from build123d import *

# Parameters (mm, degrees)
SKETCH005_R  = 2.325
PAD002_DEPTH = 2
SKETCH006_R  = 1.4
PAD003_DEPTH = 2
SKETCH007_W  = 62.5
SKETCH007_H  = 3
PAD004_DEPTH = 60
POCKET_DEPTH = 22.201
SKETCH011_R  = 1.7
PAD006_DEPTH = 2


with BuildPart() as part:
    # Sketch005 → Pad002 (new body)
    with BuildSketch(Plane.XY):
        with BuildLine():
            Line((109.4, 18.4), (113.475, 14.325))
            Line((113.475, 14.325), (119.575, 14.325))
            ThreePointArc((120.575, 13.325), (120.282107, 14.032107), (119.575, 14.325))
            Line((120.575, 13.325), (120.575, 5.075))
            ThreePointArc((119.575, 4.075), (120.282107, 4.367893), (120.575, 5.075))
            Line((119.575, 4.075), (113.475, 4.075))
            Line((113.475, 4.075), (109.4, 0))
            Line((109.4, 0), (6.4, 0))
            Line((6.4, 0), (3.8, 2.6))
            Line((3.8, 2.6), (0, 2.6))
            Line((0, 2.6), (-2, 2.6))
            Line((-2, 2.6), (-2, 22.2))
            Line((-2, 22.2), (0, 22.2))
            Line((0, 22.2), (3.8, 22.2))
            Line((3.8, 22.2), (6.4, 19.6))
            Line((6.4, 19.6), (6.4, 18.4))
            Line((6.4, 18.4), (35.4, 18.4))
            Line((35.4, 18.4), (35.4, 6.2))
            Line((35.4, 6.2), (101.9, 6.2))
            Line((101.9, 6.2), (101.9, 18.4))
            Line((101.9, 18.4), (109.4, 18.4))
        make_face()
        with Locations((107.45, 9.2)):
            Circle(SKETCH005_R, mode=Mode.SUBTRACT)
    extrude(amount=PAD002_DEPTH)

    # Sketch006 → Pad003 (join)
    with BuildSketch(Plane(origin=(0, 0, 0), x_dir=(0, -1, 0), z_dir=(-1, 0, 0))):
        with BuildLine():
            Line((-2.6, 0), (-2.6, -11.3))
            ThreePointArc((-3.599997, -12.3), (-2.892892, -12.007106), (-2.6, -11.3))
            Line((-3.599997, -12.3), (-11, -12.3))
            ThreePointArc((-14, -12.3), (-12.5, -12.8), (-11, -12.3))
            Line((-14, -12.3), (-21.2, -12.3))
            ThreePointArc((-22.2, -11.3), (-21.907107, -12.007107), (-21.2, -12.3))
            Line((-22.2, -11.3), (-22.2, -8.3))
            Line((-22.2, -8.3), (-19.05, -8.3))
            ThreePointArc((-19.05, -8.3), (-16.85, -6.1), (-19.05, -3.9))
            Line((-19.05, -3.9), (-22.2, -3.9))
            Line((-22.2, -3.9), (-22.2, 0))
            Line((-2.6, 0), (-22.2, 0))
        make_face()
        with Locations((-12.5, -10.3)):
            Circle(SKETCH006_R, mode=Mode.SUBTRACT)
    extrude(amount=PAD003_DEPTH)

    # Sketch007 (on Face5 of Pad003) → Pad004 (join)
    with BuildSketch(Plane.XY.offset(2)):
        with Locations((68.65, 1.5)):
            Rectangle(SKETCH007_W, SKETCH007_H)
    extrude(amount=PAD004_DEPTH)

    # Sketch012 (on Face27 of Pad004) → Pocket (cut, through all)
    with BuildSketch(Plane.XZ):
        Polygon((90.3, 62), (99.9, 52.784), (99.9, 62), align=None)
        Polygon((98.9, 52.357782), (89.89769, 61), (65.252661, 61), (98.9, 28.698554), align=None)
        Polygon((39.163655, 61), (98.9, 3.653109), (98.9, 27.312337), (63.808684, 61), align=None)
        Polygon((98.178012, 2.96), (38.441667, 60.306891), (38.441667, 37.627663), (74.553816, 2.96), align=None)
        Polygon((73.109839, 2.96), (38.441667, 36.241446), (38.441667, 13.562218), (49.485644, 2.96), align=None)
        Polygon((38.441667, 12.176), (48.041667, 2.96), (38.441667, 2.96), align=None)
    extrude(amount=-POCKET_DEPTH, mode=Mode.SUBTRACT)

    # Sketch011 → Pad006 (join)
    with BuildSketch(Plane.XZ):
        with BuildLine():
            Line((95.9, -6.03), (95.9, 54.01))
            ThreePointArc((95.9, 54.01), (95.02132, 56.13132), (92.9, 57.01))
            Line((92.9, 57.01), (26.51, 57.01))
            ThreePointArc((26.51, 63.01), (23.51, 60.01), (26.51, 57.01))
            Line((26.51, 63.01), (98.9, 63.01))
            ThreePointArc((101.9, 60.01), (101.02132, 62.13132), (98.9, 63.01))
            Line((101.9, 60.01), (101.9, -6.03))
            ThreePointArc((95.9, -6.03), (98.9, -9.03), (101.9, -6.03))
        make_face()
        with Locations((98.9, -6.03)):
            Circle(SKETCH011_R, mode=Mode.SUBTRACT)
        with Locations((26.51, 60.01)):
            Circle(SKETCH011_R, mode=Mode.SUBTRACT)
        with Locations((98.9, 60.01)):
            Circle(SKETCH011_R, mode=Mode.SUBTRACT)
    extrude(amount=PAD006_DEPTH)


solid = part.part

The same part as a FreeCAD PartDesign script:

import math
import FreeCAD as App
import Part
import Sketcher

V = App.Vector

doc = App.newDocument("Part")
body = doc.addObject("PartDesign::Body", "Body")

sketch1 = doc.addObject("Sketcher::SketchObject", "Sketch")
body.addObject(sketch1)
sketch1.AttachmentSupport = (doc.XY_Plane, [""])
sketch1.MapMode = "FlatFace"
sketch1.addGeometry([
    Part.LineSegment(V(113.5, 14.3, 0), V(109.4, 18.4, 0)),
    Part.LineSegment(V(109.4, 18.4, 0), V(101.9, 18.4, 0)),
    Part.LineSegment(V(101.9, 18.4, 0), V(101.9, 6.2, 0)),
    Part.LineSegment(V(101.9, 6.2, 0), V(35.4, 6.2, 0)),
    Part.LineSegment(V(35.4, 6.2, 0), V(35.4, 18.4, 0)),
    Part.LineSegment(V(35.4, 18.4, 0), V(6.4, 18.4, 0)),
    Part.LineSegment(V(6.4, 18.4, 0), V(6.4, 19.6, 0)),
    Part.LineSegment(V(6.4, 19.6, 0), V(3.8, 22.2, 0)),
    Part.LineSegment(V(3.8, 22.2, 0), V(-2, 22.2, 0)),
    Part.LineSegment(V(-2, 22.2, 0), V(-2, 2.6, 0)),
    Part.LineSegment(V(-2, 2.6, 0), V(3.8, 2.6, 0)),
    Part.LineSegment(V(3.8, 2.6, 0), V(6.4, 0, 0)),
    Part.LineSegment(V(6.4, 0, 0), V(109.4, 0, 0)),
    Part.LineSegment(V(109.4, 0, 0), V(113.5, 4.1, 0)),
    Part.LineSegment(V(113.5, 4.1, 0), V(119.6, 4.1, 0)),
    Part.ArcOfCircle(Part.Circle(V(119.6, 5.1, 0), V(0, 0, 1), 1), math.radians(-90), math.radians(0)),
    Part.LineSegment(V(120.6, 5.1, 0), V(120.6, 13.3, 0)),
    Part.ArcOfCircle(Part.Circle(V(119.6, 13.3, 0), V(0, 0, 1), 1), math.radians(0), math.radians(90)),
    Part.LineSegment(V(119.6, 14.3, 0), V(113.5, 14.3, 0)),
    Part.Circle(V(107.5, 9.2, 0), V(0, 0, 1), 2.3),
], False)
sketch1.addConstraint([
    Sketcher.Constraint("Coincident", 0, 2, 1, 1),
    Sketcher.Constraint("Coincident", 1, 2, 2, 1),
    Sketcher.Constraint("Coincident", 2, 2, 3, 1),
    Sketcher.Constraint("Coincident", 3, 2, 4, 1),
    Sketcher.Constraint("Coincident", 4, 2, 5, 1),
    Sketcher.Constraint("Coincident", 5, 2, 6, 1),
    Sketcher.Constraint("Coincident", 6, 2, 7, 1),
    Sketcher.Constraint("Coincident", 7, 2, 8, 1),
    Sketcher.Constraint("Coincident", 8, 2, 9, 1),
    Sketcher.Constraint("Coincident", 9, 2, 10, 1),
    Sketcher.Constraint("Coincident", 10, 2, 11, 1),
    Sketcher.Constraint("Coincident", 11, 2, 12, 1),
    Sketcher.Constraint("Coincident", 12, 2, 13, 1),
    Sketcher.Constraint("Coincident", 13, 2, 14, 1),
    Sketcher.Constraint("Tangent", 14, 2, 15, 1),
    Sketcher.Constraint("Tangent", 15, 2, 16, 1),
    Sketcher.Constraint("Tangent", 16, 2, 17, 1),
    Sketcher.Constraint("Tangent", 17, 2, 18, 1),
    Sketcher.Constraint("Coincident", 18, 2, 0, 1),
    Sketcher.Constraint("Horizontal", 1),
    Sketcher.Constraint("Vertical", 2),
    Sketcher.Constraint("Horizontal", 3),
    Sketcher.Constraint("Vertical", 4),
    Sketcher.Constraint("Horizontal", 5),
    Sketcher.Constraint("Vertical", 6),
    Sketcher.Constraint("Horizontal", 8),
    Sketcher.Constraint("Vertical", 9),
    Sketcher.Constraint("Horizontal", 10),
    Sketcher.Constraint("Horizontal", 12),
    Sketcher.Constraint("Horizontal", 14),
    Sketcher.Constraint("Vertical", 16),
    Sketcher.Constraint("Horizontal", 18),
    Sketcher.Constraint("Equal", 15, 17),
    Sketcher.Constraint("PointOnObject", 11, 2, -1),
    Sketcher.Constraint("Parallel", 0, 7),
    Sketcher.Constraint("Parallel", 7, 11),
    Sketcher.Constraint("Perpendicular", 11, 13),
    Sketcher.Constraint("Horizontal", 1, 2, 4, 2),
    Sketcher.Constraint("Vertical", 7, 2, 10, 2),
    Sketcher.Constraint("Vertical", 6, 2, 11, 2),
    Sketcher.Constraint("Vertical", 0, 2, 12, 2),
    Sketcher.Constraint("Vertical", 13, 2, 18, 2),
    Sketcher.Constraint("Equal", 0, 13),
    Sketcher.Constraint("Radius", 15, 0.999999),
    Sketcher.Constraint("Diameter", 19, 4.65),
    Sketcher.Constraint("DistanceX", 5, 2, 5, 1, 29.0),
    Sketcher.Constraint("DistanceX", 12, 1, 12, 2, 103.0),
    Sketcher.Constraint("DistanceX", 1, 2, 1, 1, 7.5),
    Sketcher.Constraint("DistanceX", 8, 2, 8, 1, 5.8),
    Sketcher.Constraint("DistanceX", 14, 1, 14, 2, 6.1),
    Sketcher.Constraint("DistanceY", 2, 2, 2, 1, 12.2),
    Sketcher.Constraint("DistanceY", 6, 1, 6, 2, 1.2),
    Sketcher.Constraint("DistanceY", 9, 2, 9, 1, 19.6),
    Sketcher.Constraint("DistanceX", 8, 2, -1, 1, 2.0),
    Sketcher.Constraint("DistanceY", 2, 2, 19, 3, 3.0),
    Sketcher.Constraint("DistanceY", 3, 2, 7, 2, 16.0),
    Sketcher.Constraint("DistanceY", 16, 1, 16, 2, 8.25),
    Sketcher.Constraint("DistanceX", -1, 1, 19, 3, 107.45),
])
pad1 = doc.addObject("PartDesign::Pad", "Pad")
body.addObject(pad1)
pad1.Profile = sketch1
pad1.Length = 2

sketch2 = doc.addObject("Sketcher::SketchObject", "Sketch001")
body.addObject(sketch2)
sketch2.AttachmentSupport = (doc.YZ_Plane, [""])
sketch2.MapMode = "FlatFace"
sketch2.addGeometry([
    Part.LineSegment(V(2.6, -11.3, 0), V(2.6, 0, 0)),
    Part.LineSegment(V(2.6, 0, 0), V(22.2, 0, 0)),
    Part.LineSegment(V(22.2, 0, 0), V(22.2, -3.9, 0)),
    Part.LineSegment(V(22.2, -3.9, 0), V(19.1, -3.9, 0)),
    Part.ArcOfCircle(Part.Circle(V(19.1, -6.1, 0), V(0, 0, 1), 2.2), math.radians(90), math.radians(270)),
    Part.LineSegment(V(19.1, -8.3, 0), V(22.2, -8.3, 0)),
    Part.LineSegment(V(22.2, -8.3, 0), V(22.2, -11.3, 0)),
    Part.ArcOfCircle(Part.Circle(V(21.2, -11.3, 0), V(0, 0, 1), 1), math.radians(-90), math.radians(0)),
    Part.LineSegment(V(21.2, -12.3, 0), V(14, -12.3, 0)),
    Part.ArcOfCircle(Part.Circle(V(12.5, -10.3, 0), V(0, 0, 1), 2.5), math.radians(-127), math.radians(-53)),
    Part.LineSegment(V(11, -12.3, 0), V(3.6, -12.3, 0)),
    Part.ArcOfCircle(Part.Circle(V(3.6, -11.3, 0), V(0, 0, 1), 1), math.radians(180), math.radians(270)),
    Part.Circle(V(12.5, -10.3, 0), V(0, 0, 1), 1.4),
], False)
sketch2.addConstraint([
    Sketcher.Constraint("Coincident", 0, 2, 1, 1),
    Sketcher.Constraint("Coincident", 1, 2, 2, 1),
    Sketcher.Constraint("Coincident", 2, 2, 3, 1),
    Sketcher.Constraint("Tangent", 3, 2, 4, 1),
    Sketcher.Constraint("Tangent", 4, 2, 5, 1),
    Sketcher.Constraint("Coincident", 5, 2, 6, 1),
    Sketcher.Constraint("Tangent", 6, 2, 7, 2),
    Sketcher.Constraint("Tangent", 7, 1, 8, 1),
    Sketcher.Constraint("Coincident", 8, 2, 9, 2),
    Sketcher.Constraint("Coincident", 9, 1, 10, 1),
    Sketcher.Constraint("Coincident", 10, 2, 11, 2),
    Sketcher.Constraint("Tangent", 11, 1, 0, 1),
    Sketcher.Constraint("Vertical", 0),
    Sketcher.Constraint("Horizontal", 1),
    Sketcher.Constraint("Vertical", 2),
    Sketcher.Constraint("Horizontal", 3),
    Sketcher.Constraint("Horizontal", 5),
    Sketcher.Constraint("Vertical", 6),
    Sketcher.Constraint("Horizontal", 8),
    Sketcher.Constraint("Horizontal", 10),
    Sketcher.Constraint("Coincident", 12, 3, 9, 3),
    Sketcher.Constraint("Equal", 7, 11),
    Sketcher.Constraint("PointOnObject", 0, 2, -1),
    Sketcher.Constraint("Horizontal", 7, 3, 11, 3),
    Sketcher.Constraint("Vertical", 2, 2, 5, 2),
    Sketcher.Constraint("Radius", 7, 0.999999),
    Sketcher.Constraint("Diameter", 12, 2.8),
    Sketcher.Constraint("Radius", 4, 2.2),
    Sketcher.Constraint("Radius", 9, 2.5),
    Sketcher.Constraint("DistanceY", 6, 2, 6, 1, 3.0),
    Sketcher.Constraint("DistanceX", 1, 1, 1, 2, 19.6),
    Sketcher.Constraint("DistanceX", 8, 2, 8, 1, 7.2),
    Sketcher.Constraint("DistanceY", 0, 1, 0, 2, 11.3),
    Sketcher.Constraint("DistanceX", -1, 1, 8, 2, 14.0),
    Sketcher.Constraint("DistanceX", -1, 1, 9, 1, 11.0),
    Sketcher.Constraint("DistanceX", 3, 2, 3, 1, 3.15),
    Sketcher.Constraint("DistanceX", 10, 2, 10, 1, 7.400003),
])
pad2 = doc.addObject("PartDesign::Pad", "Pad001")
body.addObject(pad2)
pad2.Profile = sketch2
pad2.Length = 2
pad2.Reversed = True

sketch3 = doc.addObject("Sketcher::SketchObject", "Sketch002")
body.addObject(sketch3)
sketch3.AttachmentSupport = (doc.XY_Plane, [""])
sketch3.MapMode = "FlatFace"
sketch3.AttachmentOffset = App.Placement(V(0, 0, 2), App.Rotation())
sketch3.addGeometry([
    Part.LineSegment(V(37.4, 3, 0), V(37.4, 0, 0)),
    Part.LineSegment(V(37.4, 0, 0), V(99.9, 0, 0)),
    Part.LineSegment(V(99.9, 0, 0), V(99.9, 3, 0)),
    Part.LineSegment(V(99.9, 3, 0), V(37.4, 3, 0)),
], False)
sketch3.addConstraint([
    Sketcher.Constraint("Coincident", 0, 2, 1, 1),
    Sketcher.Constraint("Coincident", 1, 2, 2, 1),
    Sketcher.Constraint("Coincident", 2, 2, 3, 1),
    Sketcher.Constraint("Coincident", 3, 2, 0, 1),
    Sketcher.Constraint("Vertical", 0),
    Sketcher.Constraint("Horizontal", 1),
    Sketcher.Constraint("Vertical", 2),
    Sketcher.Constraint("Horizontal", 3),
    Sketcher.Constraint("PointOnObject", 0, 2, -1),
    Sketcher.Constraint("DistanceY", 0, 2, 0, 1, 3.0),
    Sketcher.Constraint("DistanceX", 1, 1, 1, 2, 62.5),
    Sketcher.Constraint("DistanceX", -1, 1, 0, 2, 37.4),
])
pad3 = doc.addObject("PartDesign::Pad", "Pad002")
body.addObject(pad3)
pad3.Profile = sketch3
pad3.Length = 60

sketch4 = doc.addObject("Sketcher::SketchObject", "Sketch003")
body.addObject(sketch4)
sketch4.AttachmentSupport = (doc.XZ_Plane, [""])
sketch4.MapMode = "FlatFace"
sketch4.addGeometry([
    Part.LineSegment(V(90, 62, 0), V(100, 53, 0)),
    Part.LineSegment(V(100, 53, 0), V(100, 62, 0)),
    Part.LineSegment(V(100, 62, 0), V(90, 62, 0)),
    Part.LineSegment(V(99, 52, 0), V(90, 61, 0)),
    Part.LineSegment(V(90, 61, 0), V(65, 61, 0)),
    Part.LineSegment(V(65, 61, 0), V(99, 29, 0)),
    Part.LineSegment(V(99, 29, 0), V(99, 52, 0)),
    Part.LineSegment(V(39, 61, 0), V(99, 4, 0)),
    Part.LineSegment(V(99, 4, 0), V(99, 27, 0)),
    Part.LineSegment(V(99, 27, 0), V(64, 61, 0)),
    Part.LineSegment(V(64, 61, 0), V(39, 61, 0)),
    Part.LineSegment(V(98, 3, 0), V(38, 60, 0)),
    Part.LineSegment(V(38, 60, 0), V(38, 38, 0)),
    Part.LineSegment(V(38, 38, 0), V(75, 3, 0)),
    Part.LineSegment(V(75, 3, 0), V(98, 3, 0)),
    Part.LineSegment(V(73, 3, 0), V(38, 36, 0)),
    Part.LineSegment(V(38, 36, 0), V(38, 14, 0)),
    Part.LineSegment(V(38, 14, 0), V(49, 3, 0)),
    Part.LineSegment(V(49, 3, 0), V(73, 3, 0)),
    Part.LineSegment(V(48, 3, 0), V(38, 12, 0)),
    Part.LineSegment(V(38, 12, 0), V(38, 3, 0)),
    Part.LineSegment(V(38, 3, 0), V(48, 3, 0)),
], False)
sketch4.addConstraint([
    Sketcher.Constraint("Coincident", 0, 2, 1, 1),
    Sketcher.Constraint("Coincident", 1, 2, 2, 1),
    Sketcher.Constraint("Coincident", 2, 2, 0, 1),
    Sketcher.Constraint("Coincident", 3, 2, 4, 1),
    Sketcher.Constraint("Coincident", 4, 2, 5, 1),
    Sketcher.Constraint("Coincident", 5, 2, 6, 1),
    Sketcher.Constraint("Coincident", 6, 2, 3, 1),
    Sketcher.Constraint("Coincident", 7, 2, 8, 1),
    Sketcher.Constraint("Coincident", 8, 2, 9, 1),
    Sketcher.Constraint("Coincident", 9, 2, 10, 1),
    Sketcher.Constraint("Coincident", 10, 2, 7, 1),
    Sketcher.Constraint("Coincident", 11, 2, 12, 1),
    Sketcher.Constraint("Coincident", 12, 2, 13, 1),
    Sketcher.Constraint("Coincident", 13, 2, 14, 1),
    Sketcher.Constraint("Coincident", 14, 2, 11, 1),
    Sketcher.Constraint("Coincident", 15, 2, 16, 1),
    Sketcher.Constraint("Coincident", 16, 2, 17, 1),
    Sketcher.Constraint("Coincident", 17, 2, 18, 1),
    Sketcher.Constraint("Coincident", 18, 2, 15, 1),
    Sketcher.Constraint("Coincident", 19, 2, 20, 1),
    Sketcher.Constraint("Coincident", 20, 2, 21, 1),
    Sketcher.Constraint("Coincident", 21, 2, 19, 1),
    Sketcher.Constraint("Vertical", 1),
    Sketcher.Constraint("Horizontal", 2),
    Sketcher.Constraint("Horizontal", 4),
    Sketcher.Constraint("Vertical", 6),
    Sketcher.Constraint("Vertical", 8),
    Sketcher.Constraint("Horizontal", 10),
    Sketcher.Constraint("Vertical", 12),
    Sketcher.Constraint("Horizontal", 14),
    Sketcher.Constraint("Vertical", 16),
    Sketcher.Constraint("Horizontal", 18),
    Sketcher.Constraint("Vertical", 20),
    Sketcher.Constraint("Horizontal", 21),
    Sketcher.Constraint("Parallel", 0, 3),
    Sketcher.Constraint("Parallel", 3, 5),
    Sketcher.Constraint("Parallel", 5, 7),
    Sketcher.Constraint("Parallel", 7, 9),
    Sketcher.Constraint("Parallel", 9, 11),
    Sketcher.Constraint("Parallel", 11, 13),
    Sketcher.Constraint("Parallel", 13, 15),
    Sketcher.Constraint("Parallel", 15, 17),
    Sketcher.Constraint("Parallel", 17, 19),
    Sketcher.Constraint("Horizontal", 4, 2, 9, 2),
    Sketcher.Constraint("Horizontal", 14, 2, 17, 2),
    Sketcher.Constraint("Horizontal", 18, 2, 20, 2),
    Sketcher.Constraint("Vertical", 6, 2, 7, 2),
    Sketcher.Constraint("Vertical", 12, 2, 15, 2),
    Sketcher.Constraint("Vertical", 16, 2, 19, 2),
    Sketcher.Constraint("Equal", 4, 10),
    Sketcher.Constraint("Equal", 14, 18),
    Sketcher.Constraint("Equal", 2, 21),
    Sketcher.Constraint("Equal", 7, 11),
    Sketcher.Constraint("DistanceX", 2, 2, 2, 1, 9.6),
    Sketcher.Constraint("DistanceY", -1, 1, 1, 2, 62.0),
    Sketcher.Constraint("DistanceY", -1, 1, 3, 2, 61.0),
    Sketcher.Constraint("DistanceX", 5, 2, 0, 2, 1.0),
    Sketcher.Constraint("DistanceX", -1, 1, 0, 2, 99.9),
    Sketcher.Constraint("DistanceY", 1, 1, 1, 2, 9.216),
    Sketcher.Constraint("DistanceY", -1, 1, 13, 2, 2.96),
    Sketcher.Constraint("DistanceX", 4, 2, 4, 1, 24.645029),
    Sketcher.Constraint("DistanceY", 12, 2, 12, 1, 22.679228),
    Sketcher.Constraint("Distance", 7, 82.807589),
    Sketcher.Constraint("Distance", 15, 48.05764),
    Sketcher.Constraint("DistanceX", -1, 1, 3, 2, 89.89769),
    Sketcher.Constraint("DistanceX", -1, 1, 14, 2, 98.178012),
])
pocket1 = doc.addObject("PartDesign::Pocket", "Pocket")
body.addObject(pocket1)
pocket1.Profile = sketch4
pocket1.Type = "ThroughAll"

sketch5 = doc.addObject("Sketcher::SketchObject", "Sketch004")
body.addObject(sketch5)
sketch5.AttachmentSupport = (doc.XZ_Plane, [""])
sketch5.MapMode = "FlatFace"
sketch5.addGeometry([
    Part.LineSegment(V(95.9, 54, 0), V(95.9, -6, 0)),
    Part.ArcOfCircle(Part.Circle(V(98.9, -6, 0), V(0, 0, 1), 3), math.radians(180), math.radians(360)),
    Part.LineSegment(V(101.9, -6, 0), V(101.9, 60, 0)),
    Part.ArcOfCircle(Part.Circle(V(98.9, 60, 0), V(0, 0, 1), 3), math.radians(0), math.radians(90)),
    Part.LineSegment(V(98.9, 63, 0), V(26.5, 63, 0)),
    Part.ArcOfCircle(Part.Circle(V(26.5, 60, 0), V(0, 0, 1), 3), math.radians(90), math.radians(270)),
    Part.LineSegment(V(26.5, 57, 0), V(92.9, 57, 0)),
    Part.ArcOfCircle(Part.Circle(V(92.9, 54, 0), V(0, 0, 1), 3), math.radians(0), math.radians(90)),
    Part.Circle(V(98.9, -6, 0), V(0, 0, 1), 1.7),
    Part.Circle(V(98.9, 60, 0), V(0, 0, 1), 1.7),
    Part.Circle(V(26.5, 60, 0), V(0, 0, 1), 1.7),
], False)
sketch5.addConstraint([
    Sketcher.Constraint("Tangent", 0, 2, 1, 1),
    Sketcher.Constraint("Tangent", 1, 2, 2, 1),
    Sketcher.Constraint("Tangent", 2, 2, 3, 1),
    Sketcher.Constraint("Tangent", 3, 2, 4, 1),
    Sketcher.Constraint("Tangent", 4, 2, 5, 1),
    Sketcher.Constraint("Tangent", 5, 2, 6, 1),
    Sketcher.Constraint("Tangent", 6, 2, 7, 2),
    Sketcher.Constraint("Tangent", 7, 1, 0, 1),
    Sketcher.Constraint("Vertical", 0),
    Sketcher.Constraint("Vertical", 2),
    Sketcher.Constraint("Horizontal", 4),
    Sketcher.Constraint("Horizontal", 6),
    Sketcher.Constraint("Coincident", 8, 3, 1, 3),
    Sketcher.Constraint("Coincident", 9, 3, 3, 3),
    Sketcher.Constraint("Coincident", 10, 3, 5, 3),
    Sketcher.Constraint("Equal", 1, 3),
    Sketcher.Constraint("Equal", 3, 5),
    Sketcher.Constraint("Equal", 5, 7),
    Sketcher.Constraint("Equal", 8, 9),
    Sketcher.Constraint("Equal", 9, 10),
    Sketcher.Constraint("Radius", 1, 3.0),
    Sketcher.Constraint("Diameter", 8, 3.4),
    Sketcher.Constraint("DistanceX", 4, 2, 4, 1, 72.39),
    Sketcher.Constraint("DistanceY", 0, 2, 0, 1, 60.04),
    Sketcher.Constraint("DistanceX", -1, 1, 1, 3, 98.9),
    Sketcher.Constraint("DistanceY", 1, 3, -1, 1, 6.03),
])
pad4 = doc.addObject("PartDesign::Pad", "Pad003")
body.addObject(pad4)
pad4.Profile = sketch5
pad4.Length = 2

doc.recompute()
